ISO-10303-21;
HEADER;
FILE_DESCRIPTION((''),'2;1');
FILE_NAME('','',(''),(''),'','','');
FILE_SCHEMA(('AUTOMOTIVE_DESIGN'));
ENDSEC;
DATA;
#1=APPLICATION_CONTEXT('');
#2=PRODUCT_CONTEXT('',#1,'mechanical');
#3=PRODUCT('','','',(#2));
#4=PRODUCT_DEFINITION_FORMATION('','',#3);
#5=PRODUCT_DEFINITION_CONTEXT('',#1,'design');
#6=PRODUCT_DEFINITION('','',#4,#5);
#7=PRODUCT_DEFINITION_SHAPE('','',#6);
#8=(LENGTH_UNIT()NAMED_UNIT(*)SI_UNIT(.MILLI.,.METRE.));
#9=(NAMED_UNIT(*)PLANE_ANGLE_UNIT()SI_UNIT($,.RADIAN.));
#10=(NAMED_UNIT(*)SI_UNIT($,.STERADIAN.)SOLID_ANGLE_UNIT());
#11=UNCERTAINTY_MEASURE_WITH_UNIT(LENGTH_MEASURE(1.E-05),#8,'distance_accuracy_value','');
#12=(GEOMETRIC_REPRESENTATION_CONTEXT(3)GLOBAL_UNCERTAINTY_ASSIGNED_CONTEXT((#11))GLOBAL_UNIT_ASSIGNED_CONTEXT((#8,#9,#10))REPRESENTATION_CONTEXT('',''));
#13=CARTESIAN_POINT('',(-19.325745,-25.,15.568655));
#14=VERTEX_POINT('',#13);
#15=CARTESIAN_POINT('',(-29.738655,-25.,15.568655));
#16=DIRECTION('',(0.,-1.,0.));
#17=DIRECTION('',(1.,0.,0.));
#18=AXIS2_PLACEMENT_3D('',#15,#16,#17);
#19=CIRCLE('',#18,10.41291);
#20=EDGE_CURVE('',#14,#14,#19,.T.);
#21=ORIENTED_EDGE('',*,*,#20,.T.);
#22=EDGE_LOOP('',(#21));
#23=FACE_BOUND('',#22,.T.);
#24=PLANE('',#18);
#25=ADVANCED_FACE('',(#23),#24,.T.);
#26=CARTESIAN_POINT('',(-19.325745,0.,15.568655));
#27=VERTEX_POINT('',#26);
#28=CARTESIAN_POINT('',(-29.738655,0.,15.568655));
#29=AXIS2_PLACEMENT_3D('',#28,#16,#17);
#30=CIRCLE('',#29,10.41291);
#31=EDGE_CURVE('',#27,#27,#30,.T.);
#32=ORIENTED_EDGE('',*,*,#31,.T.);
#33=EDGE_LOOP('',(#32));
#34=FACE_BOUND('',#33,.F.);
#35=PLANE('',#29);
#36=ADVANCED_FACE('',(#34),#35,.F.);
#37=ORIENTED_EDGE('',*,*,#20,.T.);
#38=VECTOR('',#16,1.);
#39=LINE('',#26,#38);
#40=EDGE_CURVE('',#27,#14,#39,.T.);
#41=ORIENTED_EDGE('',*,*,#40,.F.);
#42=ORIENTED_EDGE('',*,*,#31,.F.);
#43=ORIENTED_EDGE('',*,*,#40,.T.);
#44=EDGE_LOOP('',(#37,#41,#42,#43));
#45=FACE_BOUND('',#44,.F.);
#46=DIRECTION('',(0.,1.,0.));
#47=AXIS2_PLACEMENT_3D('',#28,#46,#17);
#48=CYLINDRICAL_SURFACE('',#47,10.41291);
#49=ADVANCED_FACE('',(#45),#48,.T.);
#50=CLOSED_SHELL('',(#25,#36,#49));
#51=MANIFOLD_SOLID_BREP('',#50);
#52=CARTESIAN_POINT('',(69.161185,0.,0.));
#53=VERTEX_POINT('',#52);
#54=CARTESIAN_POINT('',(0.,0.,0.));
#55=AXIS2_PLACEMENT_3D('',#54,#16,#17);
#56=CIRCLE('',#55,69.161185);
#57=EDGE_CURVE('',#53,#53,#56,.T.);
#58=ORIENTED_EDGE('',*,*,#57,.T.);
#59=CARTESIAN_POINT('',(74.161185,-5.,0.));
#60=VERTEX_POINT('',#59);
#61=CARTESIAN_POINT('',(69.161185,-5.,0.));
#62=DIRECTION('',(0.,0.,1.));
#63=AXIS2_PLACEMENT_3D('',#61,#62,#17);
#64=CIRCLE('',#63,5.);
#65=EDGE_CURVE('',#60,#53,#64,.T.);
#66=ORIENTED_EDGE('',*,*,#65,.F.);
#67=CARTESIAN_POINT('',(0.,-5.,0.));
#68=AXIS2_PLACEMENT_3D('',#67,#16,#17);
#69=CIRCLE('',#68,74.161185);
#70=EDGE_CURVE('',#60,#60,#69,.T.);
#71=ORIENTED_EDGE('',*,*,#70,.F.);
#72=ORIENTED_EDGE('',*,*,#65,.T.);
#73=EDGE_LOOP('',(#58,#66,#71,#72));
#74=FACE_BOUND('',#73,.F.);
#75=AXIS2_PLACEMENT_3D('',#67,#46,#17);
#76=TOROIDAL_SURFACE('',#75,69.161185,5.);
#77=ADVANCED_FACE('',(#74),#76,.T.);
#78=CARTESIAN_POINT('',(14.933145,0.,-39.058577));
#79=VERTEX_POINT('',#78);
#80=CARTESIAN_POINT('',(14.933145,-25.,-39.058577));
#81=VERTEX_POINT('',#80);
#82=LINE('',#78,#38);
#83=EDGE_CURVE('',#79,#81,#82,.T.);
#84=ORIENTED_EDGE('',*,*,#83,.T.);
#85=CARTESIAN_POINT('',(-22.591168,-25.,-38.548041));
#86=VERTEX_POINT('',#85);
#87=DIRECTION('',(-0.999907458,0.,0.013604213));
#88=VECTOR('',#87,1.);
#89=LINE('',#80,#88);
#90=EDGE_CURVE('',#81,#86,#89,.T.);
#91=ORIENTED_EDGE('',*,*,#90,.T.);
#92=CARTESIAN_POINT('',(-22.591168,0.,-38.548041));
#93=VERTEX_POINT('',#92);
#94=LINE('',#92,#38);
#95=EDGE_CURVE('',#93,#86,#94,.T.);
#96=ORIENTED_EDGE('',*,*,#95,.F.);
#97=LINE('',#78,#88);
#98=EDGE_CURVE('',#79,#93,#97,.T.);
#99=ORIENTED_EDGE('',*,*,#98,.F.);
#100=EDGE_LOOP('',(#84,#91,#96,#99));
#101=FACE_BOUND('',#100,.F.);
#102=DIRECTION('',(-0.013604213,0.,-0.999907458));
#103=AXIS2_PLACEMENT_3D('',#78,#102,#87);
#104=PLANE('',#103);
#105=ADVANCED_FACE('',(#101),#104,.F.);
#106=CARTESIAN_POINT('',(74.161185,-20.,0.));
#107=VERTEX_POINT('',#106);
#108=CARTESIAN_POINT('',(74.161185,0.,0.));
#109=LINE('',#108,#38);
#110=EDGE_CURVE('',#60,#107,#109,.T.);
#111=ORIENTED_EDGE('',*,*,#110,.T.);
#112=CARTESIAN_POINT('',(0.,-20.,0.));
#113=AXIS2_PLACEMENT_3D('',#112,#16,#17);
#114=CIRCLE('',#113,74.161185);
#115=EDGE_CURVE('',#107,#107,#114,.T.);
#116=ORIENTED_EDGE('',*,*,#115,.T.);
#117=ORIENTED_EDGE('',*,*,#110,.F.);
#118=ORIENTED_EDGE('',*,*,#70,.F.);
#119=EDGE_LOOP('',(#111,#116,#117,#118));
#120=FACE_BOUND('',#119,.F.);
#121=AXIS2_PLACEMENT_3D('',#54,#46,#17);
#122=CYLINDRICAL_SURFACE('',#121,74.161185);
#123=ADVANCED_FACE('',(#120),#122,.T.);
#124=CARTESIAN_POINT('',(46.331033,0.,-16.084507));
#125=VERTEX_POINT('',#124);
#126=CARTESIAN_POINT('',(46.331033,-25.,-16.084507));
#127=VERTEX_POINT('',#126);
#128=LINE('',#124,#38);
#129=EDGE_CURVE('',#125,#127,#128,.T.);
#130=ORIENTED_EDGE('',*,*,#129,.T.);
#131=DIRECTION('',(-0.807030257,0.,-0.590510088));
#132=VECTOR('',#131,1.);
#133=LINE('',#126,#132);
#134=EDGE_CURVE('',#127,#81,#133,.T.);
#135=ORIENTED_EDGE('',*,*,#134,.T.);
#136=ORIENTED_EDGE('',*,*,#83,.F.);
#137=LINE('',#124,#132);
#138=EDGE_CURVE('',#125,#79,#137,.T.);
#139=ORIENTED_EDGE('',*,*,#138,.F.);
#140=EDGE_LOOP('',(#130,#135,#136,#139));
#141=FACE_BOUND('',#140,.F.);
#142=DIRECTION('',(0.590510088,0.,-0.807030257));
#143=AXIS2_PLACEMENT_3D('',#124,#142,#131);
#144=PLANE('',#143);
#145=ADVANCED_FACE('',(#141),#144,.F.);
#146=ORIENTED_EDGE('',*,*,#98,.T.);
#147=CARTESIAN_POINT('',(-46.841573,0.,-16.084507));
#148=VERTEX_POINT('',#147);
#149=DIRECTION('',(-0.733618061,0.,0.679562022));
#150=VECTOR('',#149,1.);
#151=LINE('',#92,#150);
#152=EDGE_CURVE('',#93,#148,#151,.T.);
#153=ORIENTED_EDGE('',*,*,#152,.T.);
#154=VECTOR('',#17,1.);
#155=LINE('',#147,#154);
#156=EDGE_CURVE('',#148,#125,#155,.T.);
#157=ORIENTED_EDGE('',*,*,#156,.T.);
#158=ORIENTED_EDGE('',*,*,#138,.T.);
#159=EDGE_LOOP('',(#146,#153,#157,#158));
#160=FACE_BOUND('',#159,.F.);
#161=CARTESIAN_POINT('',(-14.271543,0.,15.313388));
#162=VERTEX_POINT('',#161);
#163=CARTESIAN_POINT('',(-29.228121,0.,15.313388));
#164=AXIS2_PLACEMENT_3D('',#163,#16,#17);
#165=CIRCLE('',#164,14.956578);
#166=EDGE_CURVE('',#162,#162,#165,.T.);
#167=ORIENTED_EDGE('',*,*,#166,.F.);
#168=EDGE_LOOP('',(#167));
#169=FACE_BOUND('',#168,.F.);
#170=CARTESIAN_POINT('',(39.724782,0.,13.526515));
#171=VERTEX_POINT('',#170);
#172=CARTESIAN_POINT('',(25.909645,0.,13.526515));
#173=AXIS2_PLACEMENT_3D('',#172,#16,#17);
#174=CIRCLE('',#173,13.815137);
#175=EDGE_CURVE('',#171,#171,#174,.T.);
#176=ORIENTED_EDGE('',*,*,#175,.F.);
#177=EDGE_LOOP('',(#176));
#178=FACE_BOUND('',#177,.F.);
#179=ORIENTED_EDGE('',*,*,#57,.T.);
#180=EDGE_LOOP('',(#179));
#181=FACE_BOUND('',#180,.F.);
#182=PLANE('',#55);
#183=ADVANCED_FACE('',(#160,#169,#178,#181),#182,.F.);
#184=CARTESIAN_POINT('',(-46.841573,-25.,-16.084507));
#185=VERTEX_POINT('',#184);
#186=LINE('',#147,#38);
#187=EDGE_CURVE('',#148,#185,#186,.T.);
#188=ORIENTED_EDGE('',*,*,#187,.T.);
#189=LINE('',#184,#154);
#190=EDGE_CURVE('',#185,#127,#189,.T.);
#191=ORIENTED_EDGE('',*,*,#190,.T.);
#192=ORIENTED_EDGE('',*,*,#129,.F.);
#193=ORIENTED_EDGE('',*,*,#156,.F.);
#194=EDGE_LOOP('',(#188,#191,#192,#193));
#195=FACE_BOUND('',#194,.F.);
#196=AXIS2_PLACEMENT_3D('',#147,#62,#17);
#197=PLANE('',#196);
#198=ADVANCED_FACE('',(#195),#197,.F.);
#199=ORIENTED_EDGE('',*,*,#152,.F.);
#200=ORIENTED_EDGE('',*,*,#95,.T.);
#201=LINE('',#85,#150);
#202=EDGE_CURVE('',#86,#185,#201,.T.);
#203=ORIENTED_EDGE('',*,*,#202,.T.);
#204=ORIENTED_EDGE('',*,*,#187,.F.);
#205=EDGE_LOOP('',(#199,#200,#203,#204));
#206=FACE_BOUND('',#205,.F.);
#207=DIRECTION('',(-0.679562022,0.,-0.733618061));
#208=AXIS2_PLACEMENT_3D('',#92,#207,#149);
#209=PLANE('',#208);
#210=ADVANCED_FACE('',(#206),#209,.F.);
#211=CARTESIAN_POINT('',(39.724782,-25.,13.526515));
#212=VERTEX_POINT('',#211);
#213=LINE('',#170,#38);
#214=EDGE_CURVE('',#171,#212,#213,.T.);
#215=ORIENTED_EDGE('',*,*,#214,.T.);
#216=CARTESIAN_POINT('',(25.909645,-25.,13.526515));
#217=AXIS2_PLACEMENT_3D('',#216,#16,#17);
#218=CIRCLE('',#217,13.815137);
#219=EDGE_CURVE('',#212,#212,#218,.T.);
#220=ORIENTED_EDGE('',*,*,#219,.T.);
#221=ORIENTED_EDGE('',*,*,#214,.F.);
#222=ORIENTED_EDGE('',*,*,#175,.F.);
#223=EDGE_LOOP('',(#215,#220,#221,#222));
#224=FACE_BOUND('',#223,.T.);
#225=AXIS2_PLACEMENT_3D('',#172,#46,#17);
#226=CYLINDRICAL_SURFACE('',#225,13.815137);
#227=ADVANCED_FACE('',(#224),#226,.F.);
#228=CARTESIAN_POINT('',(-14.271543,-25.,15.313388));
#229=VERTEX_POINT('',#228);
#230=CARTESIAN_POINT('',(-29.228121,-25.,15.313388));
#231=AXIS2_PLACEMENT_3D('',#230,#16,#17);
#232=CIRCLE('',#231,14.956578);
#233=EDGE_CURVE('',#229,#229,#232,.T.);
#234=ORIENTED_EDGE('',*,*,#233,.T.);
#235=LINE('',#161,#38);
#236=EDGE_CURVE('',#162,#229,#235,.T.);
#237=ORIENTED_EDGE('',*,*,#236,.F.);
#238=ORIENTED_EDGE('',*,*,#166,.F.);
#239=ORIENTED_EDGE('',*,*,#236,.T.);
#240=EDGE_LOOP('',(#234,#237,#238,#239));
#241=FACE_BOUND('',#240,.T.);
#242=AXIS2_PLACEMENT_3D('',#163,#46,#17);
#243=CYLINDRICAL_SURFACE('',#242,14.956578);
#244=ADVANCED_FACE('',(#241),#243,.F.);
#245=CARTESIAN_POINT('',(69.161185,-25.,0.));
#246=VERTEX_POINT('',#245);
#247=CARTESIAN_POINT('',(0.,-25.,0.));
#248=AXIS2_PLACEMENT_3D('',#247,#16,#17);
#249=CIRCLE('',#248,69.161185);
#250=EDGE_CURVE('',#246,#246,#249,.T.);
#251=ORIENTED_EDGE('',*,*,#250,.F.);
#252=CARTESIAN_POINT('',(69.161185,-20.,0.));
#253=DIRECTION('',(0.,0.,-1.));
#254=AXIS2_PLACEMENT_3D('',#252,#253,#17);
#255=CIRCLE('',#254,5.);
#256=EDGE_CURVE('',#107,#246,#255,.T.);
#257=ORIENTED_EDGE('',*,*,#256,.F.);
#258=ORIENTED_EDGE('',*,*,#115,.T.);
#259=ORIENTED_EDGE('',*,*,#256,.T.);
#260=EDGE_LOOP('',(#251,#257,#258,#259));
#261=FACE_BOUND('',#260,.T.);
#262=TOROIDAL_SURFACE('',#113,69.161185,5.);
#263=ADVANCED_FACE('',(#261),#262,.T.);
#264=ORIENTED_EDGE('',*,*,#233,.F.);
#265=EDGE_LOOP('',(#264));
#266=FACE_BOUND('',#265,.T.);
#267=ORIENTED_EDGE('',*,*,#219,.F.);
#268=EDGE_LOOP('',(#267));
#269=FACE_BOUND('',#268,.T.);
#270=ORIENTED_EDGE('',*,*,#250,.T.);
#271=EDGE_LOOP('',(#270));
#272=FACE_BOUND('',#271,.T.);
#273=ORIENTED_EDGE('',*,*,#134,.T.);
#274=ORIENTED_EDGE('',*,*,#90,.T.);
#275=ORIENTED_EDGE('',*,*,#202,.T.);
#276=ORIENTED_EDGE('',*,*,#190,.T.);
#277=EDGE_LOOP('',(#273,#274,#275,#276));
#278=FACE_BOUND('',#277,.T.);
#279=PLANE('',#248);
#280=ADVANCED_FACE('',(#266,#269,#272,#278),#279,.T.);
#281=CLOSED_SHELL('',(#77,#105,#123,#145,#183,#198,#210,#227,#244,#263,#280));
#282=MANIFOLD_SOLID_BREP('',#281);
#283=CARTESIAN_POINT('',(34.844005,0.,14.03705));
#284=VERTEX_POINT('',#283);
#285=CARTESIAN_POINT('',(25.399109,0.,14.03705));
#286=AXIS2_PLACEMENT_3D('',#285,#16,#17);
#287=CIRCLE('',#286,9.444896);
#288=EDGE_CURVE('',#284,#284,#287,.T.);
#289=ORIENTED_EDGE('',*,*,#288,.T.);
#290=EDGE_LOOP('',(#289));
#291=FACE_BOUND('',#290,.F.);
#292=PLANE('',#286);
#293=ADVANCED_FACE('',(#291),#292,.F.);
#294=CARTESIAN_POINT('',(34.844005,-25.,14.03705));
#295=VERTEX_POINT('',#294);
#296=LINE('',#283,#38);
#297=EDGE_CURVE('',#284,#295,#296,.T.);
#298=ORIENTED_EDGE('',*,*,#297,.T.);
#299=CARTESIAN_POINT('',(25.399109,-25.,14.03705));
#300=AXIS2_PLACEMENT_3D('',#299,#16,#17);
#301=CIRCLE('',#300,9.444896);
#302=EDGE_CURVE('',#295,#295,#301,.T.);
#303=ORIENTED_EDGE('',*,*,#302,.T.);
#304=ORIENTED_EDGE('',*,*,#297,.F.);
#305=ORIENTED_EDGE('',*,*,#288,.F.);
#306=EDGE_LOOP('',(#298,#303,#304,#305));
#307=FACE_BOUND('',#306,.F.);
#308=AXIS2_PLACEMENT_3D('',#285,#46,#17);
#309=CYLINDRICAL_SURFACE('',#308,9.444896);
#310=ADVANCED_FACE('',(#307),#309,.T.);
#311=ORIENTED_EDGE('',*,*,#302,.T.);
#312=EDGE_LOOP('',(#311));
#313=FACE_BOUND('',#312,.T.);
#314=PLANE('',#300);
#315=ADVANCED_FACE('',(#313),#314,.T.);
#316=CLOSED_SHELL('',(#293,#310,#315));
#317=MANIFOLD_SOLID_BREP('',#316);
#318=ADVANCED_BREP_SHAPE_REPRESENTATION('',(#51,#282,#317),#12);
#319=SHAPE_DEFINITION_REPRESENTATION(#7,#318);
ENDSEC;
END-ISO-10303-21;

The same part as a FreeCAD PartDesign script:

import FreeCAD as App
import Part
import Sketcher
from FreeCAD import Vector


def edges_at(feature, points):
    """Names of the edges that pass closest to the given points."""
    edges = feature.Shape.Edges
    near = lambda p: min(range(len(edges)), key=lambda i: edges[i].distToShape(Part.Vertex(*p))[0])
    return sorted({f"Edge{near(p) + 1}" for p in points})


def add_polygon(sketch, points):
    """Adds a closed chain of lines whose ends are joined by coincident constraints."""
    first, n = sketch.GeometryCount, len(points)
    for a, b in zip(points, points[1:] + points[:1]):
        sketch.addGeometry(Part.LineSegment(App.Vector(*a, 0), App.Vector(*b, 0)), False)
    for i in range(n):
        sketch.addConstraint(Sketcher.Constraint("Coincident", first + i, 2, first + (i + 1) % n, 1))

doc = App.newDocument("Part")
body = doc.addObject("PartDesign::Body", "Body")

sketch1 = body.newObject("Sketcher::SketchObject", "Sketch")
sketch1.AttachmentSupport = (doc.getObject("XZ_Plane"), [""])
sketch1.MapMode = "FlatFace"
sketch1.addGeometry(Part.Circle(Vector(0, 0, 0), Vector(0, 0, 1), 74), False)
add_polygon(sketch1, [(15, -39), (-23, -39), (-47, -16), (46, -16)])
sketch1.addGeometry(Part.Circle(Vector(-29, 15, 0), Vector(0, 0, 1), 15), False)
sketch1.addGeometry(Part.Circle(Vector(26, 14, 0), Vector(0, 0, 1), 14), False)
sketch1.addConstraint([
    Sketcher.Constraint("Horizontal", 3),
    Sketcher.Constraint("Coincident", 0, 3, -1, 1),
    Sketcher.Constraint("Diameter", 0, 148.32237),
    Sketcher.Constraint("Diameter", 5, 29.913156),
    Sketcher.Constraint("Diameter", 6, 27.630274),
    Sketcher.Constraint("Distance", 2, 33.0559),
    Sketcher.Constraint("DistanceX", 1, 2, 3, 2, 68.922201),
    Sketcher.Constraint("DistanceX", 4, 2, 6, 3, 10.9765),
    Sketcher.Constraint("DistanceX", 3, 1, 3, 2, 93.172606),
    Sketcher.Constraint("DistanceX", 5, 3, -1, 1, 29.228121),
    Sketcher.Constraint("DistanceY", 1, 2, -1, 1, 38.548041),
    Sketcher.Constraint("DistanceY", 1, 2, 5, 3, 53.861429),
    Sketcher.Constraint("DistanceX", 2, 2, 5, 3, 17.613452),
    Sketcher.Constraint("DistanceY", 2, 2, 6, 3, 29.611022),
    Sketcher.Constraint("DistanceY", 4, 2, 3, 2, 22.97407),
    Sketcher.Constraint("Distance", 1, 37.527786),
])
pad1 = body.newObject("PartDesign::Pad", "Pad")
pad1.Profile = sketch1
pad1.Length = 25
doc.recompute()

fillet = body.newObject("PartDesign::Fillet", "Fillet")
fillet.Base = (pad1, edges_at(pad1, [(74.161, -12.5, 0), (-74.161, 0, 0), (-74.161, -25, 0)]))
fillet.Radius = 5
body2 = doc.addObject("PartDesign::Body", "Body001")
body2.AllowCompound = True

sketch2 = body2.newObject("Sketcher::SketchObject", "Sketch001")
sketch2.AttachmentSupport = (doc.getObject("XZ_Plane001"), [""])
sketch2.MapMode = "FlatFace"
sketch2.addGeometry([
    Part.Circle(Vector(25, 14, 0), Vector(0, 0, 1), 9),
    Part.Circle(Vector(-30, 16, 0), Vector(0, 0, 1), 10),
], False)
sketch2.addConstraint([
    Sketcher.Constraint("Diameter", 0, 18.889792),
    Sketcher.Constraint("Diameter", 1, 20.82582),
    Sketcher.Constraint("DistanceX", -1, 1, 0, 3, 25.399109),
    Sketcher.Constraint("DistanceY", -1, 1, 0, 3, 14.03705),
    Sketcher.Constraint("DistanceX", 1, 3, -1, 1, 29.738655),
    Sketcher.Constraint("DistanceY", -1, 1, 1, 3, 15.568655),
])
pad2 = body2.newObject("PartDesign::Pad", "Pad001")
pad2.Profile = sketch2
pad2.Length = 25

doc.recompute()
